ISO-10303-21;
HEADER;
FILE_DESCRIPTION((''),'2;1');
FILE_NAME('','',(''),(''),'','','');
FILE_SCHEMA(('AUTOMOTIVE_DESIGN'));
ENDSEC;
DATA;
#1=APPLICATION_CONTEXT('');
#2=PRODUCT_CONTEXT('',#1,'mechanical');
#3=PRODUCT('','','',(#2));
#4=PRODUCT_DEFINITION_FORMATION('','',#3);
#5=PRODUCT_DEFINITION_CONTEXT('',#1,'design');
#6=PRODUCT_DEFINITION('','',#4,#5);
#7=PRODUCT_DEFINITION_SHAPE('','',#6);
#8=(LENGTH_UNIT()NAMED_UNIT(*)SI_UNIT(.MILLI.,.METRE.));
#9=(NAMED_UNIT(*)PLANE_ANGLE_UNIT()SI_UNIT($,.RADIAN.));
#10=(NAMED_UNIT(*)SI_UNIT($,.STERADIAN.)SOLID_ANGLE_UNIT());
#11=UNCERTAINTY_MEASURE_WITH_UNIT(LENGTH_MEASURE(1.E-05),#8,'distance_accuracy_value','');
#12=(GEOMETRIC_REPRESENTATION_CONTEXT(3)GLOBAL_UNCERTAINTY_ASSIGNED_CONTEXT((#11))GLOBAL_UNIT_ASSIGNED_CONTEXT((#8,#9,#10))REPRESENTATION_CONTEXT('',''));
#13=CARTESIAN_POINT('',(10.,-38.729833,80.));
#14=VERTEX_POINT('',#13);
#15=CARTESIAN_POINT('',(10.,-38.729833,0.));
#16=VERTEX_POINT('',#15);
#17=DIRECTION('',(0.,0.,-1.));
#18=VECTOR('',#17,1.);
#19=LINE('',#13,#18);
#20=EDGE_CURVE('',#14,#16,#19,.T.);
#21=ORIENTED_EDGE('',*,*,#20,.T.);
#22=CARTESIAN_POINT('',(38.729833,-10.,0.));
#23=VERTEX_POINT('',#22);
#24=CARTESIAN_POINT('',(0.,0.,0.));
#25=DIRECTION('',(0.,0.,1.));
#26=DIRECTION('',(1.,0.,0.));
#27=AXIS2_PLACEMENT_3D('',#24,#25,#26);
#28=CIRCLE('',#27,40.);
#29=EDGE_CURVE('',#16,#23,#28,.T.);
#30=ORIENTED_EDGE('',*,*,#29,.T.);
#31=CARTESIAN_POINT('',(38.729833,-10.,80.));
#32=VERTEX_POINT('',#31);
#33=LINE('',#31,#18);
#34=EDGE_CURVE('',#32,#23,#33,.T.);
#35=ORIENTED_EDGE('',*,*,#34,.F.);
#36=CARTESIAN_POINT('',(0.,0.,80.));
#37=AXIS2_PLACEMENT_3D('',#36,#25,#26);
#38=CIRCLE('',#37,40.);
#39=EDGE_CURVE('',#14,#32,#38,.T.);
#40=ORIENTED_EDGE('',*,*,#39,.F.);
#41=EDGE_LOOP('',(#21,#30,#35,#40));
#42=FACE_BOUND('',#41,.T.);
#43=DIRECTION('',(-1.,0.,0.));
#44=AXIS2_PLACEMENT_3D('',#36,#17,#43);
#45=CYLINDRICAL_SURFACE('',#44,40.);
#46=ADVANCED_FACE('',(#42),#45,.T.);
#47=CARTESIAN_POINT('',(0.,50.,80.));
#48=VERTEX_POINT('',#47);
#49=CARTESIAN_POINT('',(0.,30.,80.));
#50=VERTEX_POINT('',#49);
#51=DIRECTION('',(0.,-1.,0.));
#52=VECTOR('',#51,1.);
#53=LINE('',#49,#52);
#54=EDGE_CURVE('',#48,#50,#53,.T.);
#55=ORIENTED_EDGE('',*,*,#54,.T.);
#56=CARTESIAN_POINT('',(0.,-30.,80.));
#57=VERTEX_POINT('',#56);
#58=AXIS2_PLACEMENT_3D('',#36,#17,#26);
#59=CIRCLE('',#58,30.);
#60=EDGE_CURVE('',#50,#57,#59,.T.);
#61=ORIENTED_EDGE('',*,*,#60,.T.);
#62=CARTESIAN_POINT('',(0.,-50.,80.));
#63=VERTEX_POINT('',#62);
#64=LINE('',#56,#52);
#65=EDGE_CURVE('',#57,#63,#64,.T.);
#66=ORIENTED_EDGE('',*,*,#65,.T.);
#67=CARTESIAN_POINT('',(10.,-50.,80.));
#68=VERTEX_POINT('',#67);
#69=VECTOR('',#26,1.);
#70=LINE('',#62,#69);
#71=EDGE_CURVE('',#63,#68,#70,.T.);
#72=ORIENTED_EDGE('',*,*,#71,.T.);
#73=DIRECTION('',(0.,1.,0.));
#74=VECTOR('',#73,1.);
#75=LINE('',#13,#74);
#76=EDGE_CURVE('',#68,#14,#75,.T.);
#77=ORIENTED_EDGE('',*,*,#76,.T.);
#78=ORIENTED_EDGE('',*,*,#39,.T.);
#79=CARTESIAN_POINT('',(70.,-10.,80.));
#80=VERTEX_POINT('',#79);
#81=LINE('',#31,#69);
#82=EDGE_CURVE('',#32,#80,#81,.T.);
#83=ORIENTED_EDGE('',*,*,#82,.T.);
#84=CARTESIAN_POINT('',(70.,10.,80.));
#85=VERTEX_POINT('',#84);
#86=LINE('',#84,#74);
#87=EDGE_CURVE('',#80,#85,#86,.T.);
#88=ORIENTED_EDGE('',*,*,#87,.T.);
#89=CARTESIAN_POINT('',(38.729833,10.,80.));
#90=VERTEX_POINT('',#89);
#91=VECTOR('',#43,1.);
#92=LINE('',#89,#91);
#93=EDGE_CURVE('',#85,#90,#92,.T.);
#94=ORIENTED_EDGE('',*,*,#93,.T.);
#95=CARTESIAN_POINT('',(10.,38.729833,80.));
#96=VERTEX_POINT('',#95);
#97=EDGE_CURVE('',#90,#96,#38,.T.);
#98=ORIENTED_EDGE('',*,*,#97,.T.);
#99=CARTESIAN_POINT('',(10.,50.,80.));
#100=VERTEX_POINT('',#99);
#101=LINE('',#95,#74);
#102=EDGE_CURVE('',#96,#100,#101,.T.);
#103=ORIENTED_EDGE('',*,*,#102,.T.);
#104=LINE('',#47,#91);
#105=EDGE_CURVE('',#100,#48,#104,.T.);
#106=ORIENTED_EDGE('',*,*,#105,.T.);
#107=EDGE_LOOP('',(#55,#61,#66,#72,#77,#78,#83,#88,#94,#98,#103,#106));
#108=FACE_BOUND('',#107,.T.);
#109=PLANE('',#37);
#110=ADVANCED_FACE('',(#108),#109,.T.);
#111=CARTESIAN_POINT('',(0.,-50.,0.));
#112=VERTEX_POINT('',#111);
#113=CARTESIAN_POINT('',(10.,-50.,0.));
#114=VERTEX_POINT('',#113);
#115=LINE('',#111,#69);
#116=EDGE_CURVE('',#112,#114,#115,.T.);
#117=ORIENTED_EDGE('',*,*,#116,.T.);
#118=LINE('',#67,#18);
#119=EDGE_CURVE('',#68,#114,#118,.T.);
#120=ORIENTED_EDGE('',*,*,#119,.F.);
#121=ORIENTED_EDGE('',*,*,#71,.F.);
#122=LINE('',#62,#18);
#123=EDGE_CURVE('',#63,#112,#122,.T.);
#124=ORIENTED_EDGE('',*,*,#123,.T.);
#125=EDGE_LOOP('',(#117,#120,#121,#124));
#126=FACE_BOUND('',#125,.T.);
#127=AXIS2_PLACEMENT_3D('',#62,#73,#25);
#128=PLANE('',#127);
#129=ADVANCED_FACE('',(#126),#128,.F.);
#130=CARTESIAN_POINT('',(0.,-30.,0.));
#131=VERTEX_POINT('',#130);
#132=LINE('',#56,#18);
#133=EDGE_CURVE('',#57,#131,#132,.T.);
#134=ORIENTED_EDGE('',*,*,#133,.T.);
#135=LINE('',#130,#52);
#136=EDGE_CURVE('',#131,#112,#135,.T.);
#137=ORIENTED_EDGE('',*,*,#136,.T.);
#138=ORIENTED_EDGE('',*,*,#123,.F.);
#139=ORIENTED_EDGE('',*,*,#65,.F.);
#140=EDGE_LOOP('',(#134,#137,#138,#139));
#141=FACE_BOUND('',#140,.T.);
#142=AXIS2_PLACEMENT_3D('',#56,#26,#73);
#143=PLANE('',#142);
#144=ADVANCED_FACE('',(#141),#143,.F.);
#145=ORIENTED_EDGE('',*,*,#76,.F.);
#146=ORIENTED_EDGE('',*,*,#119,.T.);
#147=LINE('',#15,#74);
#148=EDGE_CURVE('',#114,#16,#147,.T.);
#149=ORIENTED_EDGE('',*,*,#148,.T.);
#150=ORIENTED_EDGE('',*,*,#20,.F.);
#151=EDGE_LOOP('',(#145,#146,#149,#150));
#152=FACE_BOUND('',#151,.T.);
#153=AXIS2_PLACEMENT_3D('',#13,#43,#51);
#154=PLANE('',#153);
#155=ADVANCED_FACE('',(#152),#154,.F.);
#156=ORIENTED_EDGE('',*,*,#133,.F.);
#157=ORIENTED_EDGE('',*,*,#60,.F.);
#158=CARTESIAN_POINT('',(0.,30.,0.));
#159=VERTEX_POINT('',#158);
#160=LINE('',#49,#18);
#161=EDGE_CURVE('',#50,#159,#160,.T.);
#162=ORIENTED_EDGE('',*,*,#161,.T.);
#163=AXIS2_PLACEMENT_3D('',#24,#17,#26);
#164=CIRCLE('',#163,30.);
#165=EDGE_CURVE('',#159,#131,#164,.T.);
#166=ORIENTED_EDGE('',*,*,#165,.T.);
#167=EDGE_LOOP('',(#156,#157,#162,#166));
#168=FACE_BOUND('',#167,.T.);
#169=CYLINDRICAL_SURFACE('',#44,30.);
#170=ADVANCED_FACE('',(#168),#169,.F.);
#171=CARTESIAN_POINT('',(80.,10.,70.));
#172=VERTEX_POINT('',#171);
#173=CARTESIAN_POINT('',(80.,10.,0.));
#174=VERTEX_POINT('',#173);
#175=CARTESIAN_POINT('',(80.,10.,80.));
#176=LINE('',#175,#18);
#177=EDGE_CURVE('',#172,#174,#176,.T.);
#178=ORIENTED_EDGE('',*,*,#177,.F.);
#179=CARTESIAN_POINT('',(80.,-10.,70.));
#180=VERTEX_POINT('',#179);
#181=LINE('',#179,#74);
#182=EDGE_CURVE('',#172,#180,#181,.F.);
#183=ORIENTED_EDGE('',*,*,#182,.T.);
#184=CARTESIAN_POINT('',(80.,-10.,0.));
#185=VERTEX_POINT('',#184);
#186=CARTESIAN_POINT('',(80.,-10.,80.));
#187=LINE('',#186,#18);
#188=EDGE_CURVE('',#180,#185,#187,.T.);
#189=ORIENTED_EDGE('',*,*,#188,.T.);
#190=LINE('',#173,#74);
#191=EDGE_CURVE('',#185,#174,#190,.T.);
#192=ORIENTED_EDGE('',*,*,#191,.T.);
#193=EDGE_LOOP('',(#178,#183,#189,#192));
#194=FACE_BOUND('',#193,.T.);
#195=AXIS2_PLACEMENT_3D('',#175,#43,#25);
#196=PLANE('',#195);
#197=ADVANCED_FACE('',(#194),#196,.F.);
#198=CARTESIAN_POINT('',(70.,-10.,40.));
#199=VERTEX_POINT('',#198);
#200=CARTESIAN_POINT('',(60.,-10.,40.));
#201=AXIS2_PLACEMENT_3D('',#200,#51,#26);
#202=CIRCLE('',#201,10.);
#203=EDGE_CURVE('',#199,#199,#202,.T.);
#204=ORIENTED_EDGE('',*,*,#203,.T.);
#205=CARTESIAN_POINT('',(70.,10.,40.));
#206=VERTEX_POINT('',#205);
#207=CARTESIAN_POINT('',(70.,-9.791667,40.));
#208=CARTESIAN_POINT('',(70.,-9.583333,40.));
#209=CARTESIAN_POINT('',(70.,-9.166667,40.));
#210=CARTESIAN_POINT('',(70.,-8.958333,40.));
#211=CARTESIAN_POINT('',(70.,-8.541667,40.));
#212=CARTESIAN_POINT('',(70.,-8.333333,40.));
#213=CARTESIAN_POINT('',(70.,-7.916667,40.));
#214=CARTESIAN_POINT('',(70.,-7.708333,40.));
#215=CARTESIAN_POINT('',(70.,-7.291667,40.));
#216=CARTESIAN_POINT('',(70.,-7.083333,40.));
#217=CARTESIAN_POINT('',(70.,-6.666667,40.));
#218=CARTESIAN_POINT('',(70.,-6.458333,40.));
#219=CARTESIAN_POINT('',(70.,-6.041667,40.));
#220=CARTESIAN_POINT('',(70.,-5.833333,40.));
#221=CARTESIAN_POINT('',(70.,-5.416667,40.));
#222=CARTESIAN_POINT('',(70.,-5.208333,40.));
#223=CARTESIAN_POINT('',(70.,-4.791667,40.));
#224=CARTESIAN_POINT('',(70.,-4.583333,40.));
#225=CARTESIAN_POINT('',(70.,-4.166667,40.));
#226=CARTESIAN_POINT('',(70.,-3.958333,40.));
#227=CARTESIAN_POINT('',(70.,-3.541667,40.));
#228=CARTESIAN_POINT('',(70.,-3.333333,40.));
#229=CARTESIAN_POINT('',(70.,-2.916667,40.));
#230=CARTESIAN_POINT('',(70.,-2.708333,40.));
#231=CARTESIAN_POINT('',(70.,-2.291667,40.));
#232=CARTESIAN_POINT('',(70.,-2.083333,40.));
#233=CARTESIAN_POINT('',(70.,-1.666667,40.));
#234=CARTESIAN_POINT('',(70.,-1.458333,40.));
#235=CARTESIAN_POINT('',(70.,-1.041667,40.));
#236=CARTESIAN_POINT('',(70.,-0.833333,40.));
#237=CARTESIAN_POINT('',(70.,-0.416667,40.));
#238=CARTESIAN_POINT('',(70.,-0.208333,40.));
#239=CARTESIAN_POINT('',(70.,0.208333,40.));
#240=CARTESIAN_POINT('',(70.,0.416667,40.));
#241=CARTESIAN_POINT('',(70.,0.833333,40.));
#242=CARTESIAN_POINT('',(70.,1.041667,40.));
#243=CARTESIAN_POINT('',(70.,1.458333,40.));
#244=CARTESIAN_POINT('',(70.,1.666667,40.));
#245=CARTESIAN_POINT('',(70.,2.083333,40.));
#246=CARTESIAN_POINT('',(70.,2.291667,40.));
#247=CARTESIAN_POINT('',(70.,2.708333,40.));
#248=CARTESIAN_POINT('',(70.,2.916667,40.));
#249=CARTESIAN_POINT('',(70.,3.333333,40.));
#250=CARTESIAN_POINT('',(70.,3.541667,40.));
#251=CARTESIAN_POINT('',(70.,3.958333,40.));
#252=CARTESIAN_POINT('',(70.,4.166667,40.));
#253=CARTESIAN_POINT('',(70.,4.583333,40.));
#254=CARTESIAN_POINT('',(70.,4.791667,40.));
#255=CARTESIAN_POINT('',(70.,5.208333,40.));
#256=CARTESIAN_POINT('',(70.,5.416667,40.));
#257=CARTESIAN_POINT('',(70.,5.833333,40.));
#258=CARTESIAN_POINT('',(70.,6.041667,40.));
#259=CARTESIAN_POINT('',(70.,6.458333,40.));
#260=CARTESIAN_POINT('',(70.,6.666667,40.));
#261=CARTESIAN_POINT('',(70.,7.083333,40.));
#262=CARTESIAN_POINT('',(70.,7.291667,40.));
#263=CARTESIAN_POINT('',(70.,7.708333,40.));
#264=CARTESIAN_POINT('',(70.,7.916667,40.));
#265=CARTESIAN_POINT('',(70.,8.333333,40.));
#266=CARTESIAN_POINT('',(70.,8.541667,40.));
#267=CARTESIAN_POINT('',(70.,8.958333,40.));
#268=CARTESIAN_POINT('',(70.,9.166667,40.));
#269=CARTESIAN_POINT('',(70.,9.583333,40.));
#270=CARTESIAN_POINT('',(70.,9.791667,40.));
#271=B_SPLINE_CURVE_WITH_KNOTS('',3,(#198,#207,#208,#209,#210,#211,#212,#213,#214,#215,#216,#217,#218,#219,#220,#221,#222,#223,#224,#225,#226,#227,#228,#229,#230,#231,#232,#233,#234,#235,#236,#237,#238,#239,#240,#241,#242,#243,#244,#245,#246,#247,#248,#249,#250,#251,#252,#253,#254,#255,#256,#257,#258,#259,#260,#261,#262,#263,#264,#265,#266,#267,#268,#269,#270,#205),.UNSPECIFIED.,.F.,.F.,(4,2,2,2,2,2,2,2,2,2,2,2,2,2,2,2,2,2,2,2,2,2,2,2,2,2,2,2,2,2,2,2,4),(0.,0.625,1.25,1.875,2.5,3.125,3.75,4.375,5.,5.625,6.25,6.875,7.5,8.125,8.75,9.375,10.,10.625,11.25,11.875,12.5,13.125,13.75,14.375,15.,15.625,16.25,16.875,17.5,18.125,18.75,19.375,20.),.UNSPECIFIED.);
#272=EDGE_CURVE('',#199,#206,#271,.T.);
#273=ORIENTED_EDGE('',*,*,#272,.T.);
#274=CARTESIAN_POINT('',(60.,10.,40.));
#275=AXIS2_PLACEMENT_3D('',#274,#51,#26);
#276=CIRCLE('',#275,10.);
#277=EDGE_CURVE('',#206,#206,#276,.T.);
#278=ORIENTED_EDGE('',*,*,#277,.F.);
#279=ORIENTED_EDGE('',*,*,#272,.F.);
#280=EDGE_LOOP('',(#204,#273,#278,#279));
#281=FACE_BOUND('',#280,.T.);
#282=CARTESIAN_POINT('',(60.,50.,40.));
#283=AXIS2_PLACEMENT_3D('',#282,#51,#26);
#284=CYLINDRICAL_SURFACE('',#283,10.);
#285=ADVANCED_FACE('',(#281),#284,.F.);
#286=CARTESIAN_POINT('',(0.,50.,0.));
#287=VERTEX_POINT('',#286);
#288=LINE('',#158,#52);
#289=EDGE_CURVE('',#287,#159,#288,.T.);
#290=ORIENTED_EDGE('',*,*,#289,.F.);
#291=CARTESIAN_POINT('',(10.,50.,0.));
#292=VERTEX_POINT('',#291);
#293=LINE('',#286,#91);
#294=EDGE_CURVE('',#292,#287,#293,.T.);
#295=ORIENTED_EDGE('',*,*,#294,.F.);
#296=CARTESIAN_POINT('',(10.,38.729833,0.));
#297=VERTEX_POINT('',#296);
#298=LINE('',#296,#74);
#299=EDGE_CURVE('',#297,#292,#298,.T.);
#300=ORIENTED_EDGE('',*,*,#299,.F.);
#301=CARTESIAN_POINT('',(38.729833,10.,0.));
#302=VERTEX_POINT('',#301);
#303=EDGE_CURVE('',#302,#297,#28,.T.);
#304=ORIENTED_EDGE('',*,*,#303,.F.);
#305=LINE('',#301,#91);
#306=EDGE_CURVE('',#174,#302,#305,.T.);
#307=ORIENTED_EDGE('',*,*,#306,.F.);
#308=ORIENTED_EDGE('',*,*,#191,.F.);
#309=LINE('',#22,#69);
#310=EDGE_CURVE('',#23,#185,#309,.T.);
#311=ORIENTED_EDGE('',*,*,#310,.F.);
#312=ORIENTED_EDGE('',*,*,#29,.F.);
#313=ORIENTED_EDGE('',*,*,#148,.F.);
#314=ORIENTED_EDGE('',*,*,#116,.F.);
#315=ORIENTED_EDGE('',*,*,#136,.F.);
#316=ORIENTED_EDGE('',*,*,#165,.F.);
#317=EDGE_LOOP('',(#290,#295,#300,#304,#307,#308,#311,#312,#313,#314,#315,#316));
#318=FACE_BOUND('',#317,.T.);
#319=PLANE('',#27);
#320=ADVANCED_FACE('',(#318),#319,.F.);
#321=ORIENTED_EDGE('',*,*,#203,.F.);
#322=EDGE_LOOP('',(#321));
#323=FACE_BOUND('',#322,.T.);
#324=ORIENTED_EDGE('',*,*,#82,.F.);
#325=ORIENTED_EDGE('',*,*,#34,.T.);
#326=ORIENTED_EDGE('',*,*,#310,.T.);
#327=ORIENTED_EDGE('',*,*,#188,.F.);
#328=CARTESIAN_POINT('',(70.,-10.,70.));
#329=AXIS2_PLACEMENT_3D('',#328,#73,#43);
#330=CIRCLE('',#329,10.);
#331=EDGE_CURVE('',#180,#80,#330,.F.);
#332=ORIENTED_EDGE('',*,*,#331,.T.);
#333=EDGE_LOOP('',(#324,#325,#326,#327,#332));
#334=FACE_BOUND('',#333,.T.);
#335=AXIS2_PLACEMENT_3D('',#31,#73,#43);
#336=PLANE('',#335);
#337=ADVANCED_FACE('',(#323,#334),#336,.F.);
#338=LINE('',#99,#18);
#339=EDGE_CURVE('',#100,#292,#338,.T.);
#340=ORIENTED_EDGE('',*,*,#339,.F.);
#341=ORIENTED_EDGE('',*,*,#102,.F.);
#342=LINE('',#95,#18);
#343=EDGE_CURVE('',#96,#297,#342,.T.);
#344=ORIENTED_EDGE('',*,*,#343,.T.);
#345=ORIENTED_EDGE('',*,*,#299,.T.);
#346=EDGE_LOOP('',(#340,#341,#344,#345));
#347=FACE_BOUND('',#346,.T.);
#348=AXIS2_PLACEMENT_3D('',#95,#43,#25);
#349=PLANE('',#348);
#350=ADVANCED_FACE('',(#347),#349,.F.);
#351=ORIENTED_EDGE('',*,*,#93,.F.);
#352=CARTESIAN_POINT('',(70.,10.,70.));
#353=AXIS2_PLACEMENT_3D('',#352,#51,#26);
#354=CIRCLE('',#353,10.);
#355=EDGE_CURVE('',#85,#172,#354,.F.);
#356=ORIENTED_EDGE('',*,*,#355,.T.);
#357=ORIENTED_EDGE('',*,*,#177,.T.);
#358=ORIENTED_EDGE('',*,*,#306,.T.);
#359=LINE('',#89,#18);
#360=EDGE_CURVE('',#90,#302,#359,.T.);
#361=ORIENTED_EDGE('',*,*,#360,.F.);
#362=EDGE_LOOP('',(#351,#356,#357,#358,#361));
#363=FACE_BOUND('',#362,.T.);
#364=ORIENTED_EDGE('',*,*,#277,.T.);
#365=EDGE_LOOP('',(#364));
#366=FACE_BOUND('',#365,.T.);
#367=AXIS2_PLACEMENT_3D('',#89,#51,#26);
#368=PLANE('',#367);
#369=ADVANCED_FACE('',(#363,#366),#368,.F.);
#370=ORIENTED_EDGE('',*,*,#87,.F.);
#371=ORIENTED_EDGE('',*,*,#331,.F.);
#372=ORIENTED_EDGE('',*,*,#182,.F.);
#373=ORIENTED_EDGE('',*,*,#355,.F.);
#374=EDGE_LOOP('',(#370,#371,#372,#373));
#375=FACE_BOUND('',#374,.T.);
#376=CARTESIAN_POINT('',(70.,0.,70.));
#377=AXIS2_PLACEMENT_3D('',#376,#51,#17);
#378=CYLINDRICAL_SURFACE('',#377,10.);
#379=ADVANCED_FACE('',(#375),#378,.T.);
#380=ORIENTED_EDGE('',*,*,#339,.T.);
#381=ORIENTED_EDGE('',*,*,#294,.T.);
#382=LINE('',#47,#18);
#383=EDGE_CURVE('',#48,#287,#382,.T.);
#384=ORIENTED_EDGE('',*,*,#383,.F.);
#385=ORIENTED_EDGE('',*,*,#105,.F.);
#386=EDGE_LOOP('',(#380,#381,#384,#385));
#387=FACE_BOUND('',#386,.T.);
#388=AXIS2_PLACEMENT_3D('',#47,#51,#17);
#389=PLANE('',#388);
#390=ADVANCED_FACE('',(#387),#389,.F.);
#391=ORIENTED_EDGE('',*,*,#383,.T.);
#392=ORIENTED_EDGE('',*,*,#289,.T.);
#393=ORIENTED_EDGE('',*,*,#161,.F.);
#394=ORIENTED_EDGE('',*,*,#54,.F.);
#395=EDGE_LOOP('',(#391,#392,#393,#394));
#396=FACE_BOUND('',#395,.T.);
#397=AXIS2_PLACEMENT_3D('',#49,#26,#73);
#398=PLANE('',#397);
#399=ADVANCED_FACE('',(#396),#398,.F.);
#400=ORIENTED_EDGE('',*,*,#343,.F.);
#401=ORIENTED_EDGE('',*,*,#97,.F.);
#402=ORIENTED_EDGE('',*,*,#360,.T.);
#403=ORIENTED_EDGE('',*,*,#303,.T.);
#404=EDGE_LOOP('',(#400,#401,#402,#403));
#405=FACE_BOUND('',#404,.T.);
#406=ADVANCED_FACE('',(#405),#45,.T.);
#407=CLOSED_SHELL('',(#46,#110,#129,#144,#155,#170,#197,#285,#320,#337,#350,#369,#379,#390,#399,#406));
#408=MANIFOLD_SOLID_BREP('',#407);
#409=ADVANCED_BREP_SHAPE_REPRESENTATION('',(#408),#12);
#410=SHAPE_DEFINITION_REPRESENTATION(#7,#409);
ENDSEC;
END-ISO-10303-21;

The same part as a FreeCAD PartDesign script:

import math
import FreeCAD as App
import Part
import Sketcher
Q = App.Units.Quantity


def edges_at(feature, points):
    """Names of the edges that pass closest to the given points."""
    edges = feature.Shape.Edges
    near = lambda p: min(range(len(edges)), key=lambda i: edges[i].distToShape(Part.Vertex(*p))[0])
    return sorted({f"Edge{near(p) + 1}" for p in points})

doc = App.newDocument("Part")
params = doc.addObject("Spreadsheet::Sheet", "Params")
for row, (alias, value) in enumerate([
    ("sketch1_radius", "40 mm"),
    ("sketch1_radius2", "30 mm"),
    ("sketch1_width", "10 mm"),
    ("sketch1_height", "20 mm"),
    ("pad1_length", "80 mm"),
    ("sketch2_diameter", "20 mm"),
    ("fillet_radius", "10 mm"),
], start=1):
    params.set(f"A{row}", alias)
    params.set(f"B{row}", "=" + value)
    params.setAlias(f"B{row}", alias)

body = doc.addObject("PartDesign::Body", "Body")

sketch1 = doc.addObject("Sketcher::SketchObject", "Sketch")
body.addObject(sketch1)
sketch1.AttachmentSupport = (doc.XY_Plane, [""])
sketch1.MapMode = "FlatFace"
sketch1.addGeometry(Part.LineSegment(App.Vector(0, -30, 0), App.Vector(0, -50, 0)), False)
sketch1.addGeometry(Part.LineSegment(App.Vector(0, -50, 0), App.Vector(10, -50, 0)), False)
sketch1.addGeometry(Part.LineSegment(App.Vector(10, -50, 0), App.Vector(10, -39, 0)), False)
sketch1.addGeometry(Part.ArcOfCircle(Part.Circle(App.Vector(0, 0, 0), App.Vector(0, 0, 1), 40), math.radians(-76), math.radians(-14)), False)
sketch1.addGeometry(Part.LineSegment(App.Vector(39, -10, 0), App.Vector(80, -10, 0)), False)
sketch1.addGeometry(Part.LineSegment(App.Vector(80, -10, 0), App.Vector(80, 10, 0)), False)
sketch1.addGeometry(Part.LineSegment(App.Vector(80, 10, 0), App.Vector(39, 10, 0)), False)
sketch1.addGeometry(Part.ArcOfCircle(Part.Circle(App.Vector(0, 0, 0), App.Vector(0, 0, 1), 40), math.radians(14), math.radians(76)), False)
sketch1.addGeometry(Part.LineSegment(App.Vector(10, 39, 0), App.Vector(10, 50, 0)), False)
sketch1.addGeometry(Part.LineSegment(App.Vector(10, 50, 0), App.Vector(0, 50, 0)), False)
sketch1.addGeometry(Part.LineSegment(App.Vector(0, 50, 0), App.Vector(0, 30, 0)), False)
sketch1.addGeometry(Part.ArcOfCircle(Part.Circle(App.Vector(0, 0, 0), App.Vector(0, 0, 1), 30), math.radians(-90), math.radians(90)), False)
sketch1.addConstraint(Sketcher.Constraint("Coincident", 0, 2, 1, 1))
sketch1.addConstraint(Sketcher.Constraint("Coincident", 1, 2, 2, 1))
sketch1.addConstraint(Sketcher.Constraint("Coincident", 2, 2, 3, 1))
sketch1.addConstraint(Sketcher.Constraint("Coincident", 3, 2, 4, 1))
sketch1.addConstraint(Sketcher.Constraint("Coincident", 4, 2, 5, 1))
sketch1.addConstraint(Sketcher.Constraint("Coincident", 5, 2, 6, 1))
sketch1.addConstraint(Sketcher.Constraint("Coincident", 6, 2, 7, 1))
sketch1.addConstraint(Sketcher.Constraint("Coincident", 7, 2, 8, 1))
sketch1.addConstraint(Sketcher.Constraint("Coincident", 8, 2, 9, 1))
sketch1.addConstraint(Sketcher.Constraint("Coincident", 9, 2, 10, 1))
sketch1.addConstraint(Sketcher.Constraint("Coincident", 10, 2, 11, 2))
sketch1.addConstraint(Sketcher.Constraint("Coincident", 11, 1, 0, 1))
sketch1.addConstraint(Sketcher.Constraint("Vertical", 0))
sketch1.addConstraint(Sketcher.Constraint("Horizontal", 1))
sketch1.addConstraint(Sketcher.Constraint("Vertical", 2))
sketch1.addConstraint(Sketcher.Constraint("Horizontal", 4))
sketch1.addConstraint(Sketcher.Constraint("Vertical", 5))
sketch1.addConstraint(Sketcher.Constraint("Horizontal", 6))
sketch1.addConstraint(Sketcher.Constraint("Vertical", 8))
sketch1.addConstraint(Sketcher.Constraint("Horizontal", 9))
sketch1.addConstraint(Sketcher.Constraint("Vertical", 10))
sketch1.addConstraint(Sketcher.Constraint("Coincident", 3, 3, -1, 1))
sketch1.addConstraint(Sketcher.Constraint("Coincident", 7, 3, -1, 1))
sketch1.addConstraint(Sketcher.Constraint("Coincident", 11, 3, -1, 1))
sketch1.addConstraint(Sketcher.Constraint("Equal", 3, 7))
sketch1.addConstraint(Sketcher.Constraint("Symmetric", 0, 2, 9, 2, -1, 1))
sketch1.addConstraint(Sketcher.Constraint("PointOnObject", 0, 2, -2))
sketch1.addConstraint(Sketcher.Constraint("Vertical", 3, 2, 6, 2))
sketch1.addConstraint(Sketcher.Constraint("Vertical", 2, 2, 7, 2))
sketch1.addConstraint(Sketcher.Constraint("Equal", 0, 5))
sketch1.addConstraint(Sketcher.Constraint("Radius", 3, Q("40 mm")))
sketch1.addConstraint(Sketcher.Constraint("Radius", 11, Q("30 mm")))
sketch1.addConstraint(Sketcher.Constraint("DistanceX", 1, 1, 1, 2, Q("10 mm")))
sketch1.addConstraint(Sketcher.Constraint("DistanceY", 0, 2, 0, 1, Q("20 mm")))
sketch1.addConstraint(Sketcher.Constraint("DistanceX", -1, 1, 4, 2, Q("80 mm")))
sketch1.setExpression("Constraints[30]", "Params.sketch1_radius")
sketch1.setExpression("Constraints[31]", "Params.sketch1_radius2")
sketch1.setExpression("Constraints[32]", "Params.sketch1_width")
sketch1.setExpression("Constraints[33]", "Params.sketch1_height")
pad1 = doc.addObject("PartDesign::Pad", "Pad")
body.addObject(pad1)
pad1.Profile = sketch1
pad1.setExpression("Length", "Params.pad1_length")

sketch2 = doc.addObject("Sketcher::SketchObject", "Sketch001")
body.addObject(sketch2)
sketch2.AttachmentSupport = (doc.XZ_Plane, [""])
sketch2.MapMode = "FlatFace"
sketch2.AttachmentOffset = App.Placement(App.Vector(0, 0, 10), App.Rotation())
sketch2.addGeometry(Part.Circle(App.Vector(60, 40, 0), App.Vector(0, 0, 1), 10), False)
sketch2.addConstraint(Sketcher.Constraint("Diameter", 0, Q("20 mm")))
sketch2.addConstraint(Sketcher.Constraint("DistanceX", -1, 1, 0, 3, Q("60 mm")))
sketch2.addConstraint(Sketcher.Constraint("DistanceY", -1, 1, 0, 3, Q("40 mm")))
sketch2.setExpression("Constraints[0]", "Params.sketch2_diameter")
pocket1 = doc.addObject("PartDesign::Pocket", "Pocket")
body.addObject(pocket1)
pocket1.Profile = sketch2
pocket1.Type = "ThroughAll"
doc.recompute()

fillet = doc.addObject("PartDesign::Fillet", "Fillet")
body.addObject(fillet)
fillet.Base = (pocket1, edges_at(pocket1, [(80, 0, 80)]))
fillet.setExpression("Radius", "Params.fillet_radius")

doc.recompute()
